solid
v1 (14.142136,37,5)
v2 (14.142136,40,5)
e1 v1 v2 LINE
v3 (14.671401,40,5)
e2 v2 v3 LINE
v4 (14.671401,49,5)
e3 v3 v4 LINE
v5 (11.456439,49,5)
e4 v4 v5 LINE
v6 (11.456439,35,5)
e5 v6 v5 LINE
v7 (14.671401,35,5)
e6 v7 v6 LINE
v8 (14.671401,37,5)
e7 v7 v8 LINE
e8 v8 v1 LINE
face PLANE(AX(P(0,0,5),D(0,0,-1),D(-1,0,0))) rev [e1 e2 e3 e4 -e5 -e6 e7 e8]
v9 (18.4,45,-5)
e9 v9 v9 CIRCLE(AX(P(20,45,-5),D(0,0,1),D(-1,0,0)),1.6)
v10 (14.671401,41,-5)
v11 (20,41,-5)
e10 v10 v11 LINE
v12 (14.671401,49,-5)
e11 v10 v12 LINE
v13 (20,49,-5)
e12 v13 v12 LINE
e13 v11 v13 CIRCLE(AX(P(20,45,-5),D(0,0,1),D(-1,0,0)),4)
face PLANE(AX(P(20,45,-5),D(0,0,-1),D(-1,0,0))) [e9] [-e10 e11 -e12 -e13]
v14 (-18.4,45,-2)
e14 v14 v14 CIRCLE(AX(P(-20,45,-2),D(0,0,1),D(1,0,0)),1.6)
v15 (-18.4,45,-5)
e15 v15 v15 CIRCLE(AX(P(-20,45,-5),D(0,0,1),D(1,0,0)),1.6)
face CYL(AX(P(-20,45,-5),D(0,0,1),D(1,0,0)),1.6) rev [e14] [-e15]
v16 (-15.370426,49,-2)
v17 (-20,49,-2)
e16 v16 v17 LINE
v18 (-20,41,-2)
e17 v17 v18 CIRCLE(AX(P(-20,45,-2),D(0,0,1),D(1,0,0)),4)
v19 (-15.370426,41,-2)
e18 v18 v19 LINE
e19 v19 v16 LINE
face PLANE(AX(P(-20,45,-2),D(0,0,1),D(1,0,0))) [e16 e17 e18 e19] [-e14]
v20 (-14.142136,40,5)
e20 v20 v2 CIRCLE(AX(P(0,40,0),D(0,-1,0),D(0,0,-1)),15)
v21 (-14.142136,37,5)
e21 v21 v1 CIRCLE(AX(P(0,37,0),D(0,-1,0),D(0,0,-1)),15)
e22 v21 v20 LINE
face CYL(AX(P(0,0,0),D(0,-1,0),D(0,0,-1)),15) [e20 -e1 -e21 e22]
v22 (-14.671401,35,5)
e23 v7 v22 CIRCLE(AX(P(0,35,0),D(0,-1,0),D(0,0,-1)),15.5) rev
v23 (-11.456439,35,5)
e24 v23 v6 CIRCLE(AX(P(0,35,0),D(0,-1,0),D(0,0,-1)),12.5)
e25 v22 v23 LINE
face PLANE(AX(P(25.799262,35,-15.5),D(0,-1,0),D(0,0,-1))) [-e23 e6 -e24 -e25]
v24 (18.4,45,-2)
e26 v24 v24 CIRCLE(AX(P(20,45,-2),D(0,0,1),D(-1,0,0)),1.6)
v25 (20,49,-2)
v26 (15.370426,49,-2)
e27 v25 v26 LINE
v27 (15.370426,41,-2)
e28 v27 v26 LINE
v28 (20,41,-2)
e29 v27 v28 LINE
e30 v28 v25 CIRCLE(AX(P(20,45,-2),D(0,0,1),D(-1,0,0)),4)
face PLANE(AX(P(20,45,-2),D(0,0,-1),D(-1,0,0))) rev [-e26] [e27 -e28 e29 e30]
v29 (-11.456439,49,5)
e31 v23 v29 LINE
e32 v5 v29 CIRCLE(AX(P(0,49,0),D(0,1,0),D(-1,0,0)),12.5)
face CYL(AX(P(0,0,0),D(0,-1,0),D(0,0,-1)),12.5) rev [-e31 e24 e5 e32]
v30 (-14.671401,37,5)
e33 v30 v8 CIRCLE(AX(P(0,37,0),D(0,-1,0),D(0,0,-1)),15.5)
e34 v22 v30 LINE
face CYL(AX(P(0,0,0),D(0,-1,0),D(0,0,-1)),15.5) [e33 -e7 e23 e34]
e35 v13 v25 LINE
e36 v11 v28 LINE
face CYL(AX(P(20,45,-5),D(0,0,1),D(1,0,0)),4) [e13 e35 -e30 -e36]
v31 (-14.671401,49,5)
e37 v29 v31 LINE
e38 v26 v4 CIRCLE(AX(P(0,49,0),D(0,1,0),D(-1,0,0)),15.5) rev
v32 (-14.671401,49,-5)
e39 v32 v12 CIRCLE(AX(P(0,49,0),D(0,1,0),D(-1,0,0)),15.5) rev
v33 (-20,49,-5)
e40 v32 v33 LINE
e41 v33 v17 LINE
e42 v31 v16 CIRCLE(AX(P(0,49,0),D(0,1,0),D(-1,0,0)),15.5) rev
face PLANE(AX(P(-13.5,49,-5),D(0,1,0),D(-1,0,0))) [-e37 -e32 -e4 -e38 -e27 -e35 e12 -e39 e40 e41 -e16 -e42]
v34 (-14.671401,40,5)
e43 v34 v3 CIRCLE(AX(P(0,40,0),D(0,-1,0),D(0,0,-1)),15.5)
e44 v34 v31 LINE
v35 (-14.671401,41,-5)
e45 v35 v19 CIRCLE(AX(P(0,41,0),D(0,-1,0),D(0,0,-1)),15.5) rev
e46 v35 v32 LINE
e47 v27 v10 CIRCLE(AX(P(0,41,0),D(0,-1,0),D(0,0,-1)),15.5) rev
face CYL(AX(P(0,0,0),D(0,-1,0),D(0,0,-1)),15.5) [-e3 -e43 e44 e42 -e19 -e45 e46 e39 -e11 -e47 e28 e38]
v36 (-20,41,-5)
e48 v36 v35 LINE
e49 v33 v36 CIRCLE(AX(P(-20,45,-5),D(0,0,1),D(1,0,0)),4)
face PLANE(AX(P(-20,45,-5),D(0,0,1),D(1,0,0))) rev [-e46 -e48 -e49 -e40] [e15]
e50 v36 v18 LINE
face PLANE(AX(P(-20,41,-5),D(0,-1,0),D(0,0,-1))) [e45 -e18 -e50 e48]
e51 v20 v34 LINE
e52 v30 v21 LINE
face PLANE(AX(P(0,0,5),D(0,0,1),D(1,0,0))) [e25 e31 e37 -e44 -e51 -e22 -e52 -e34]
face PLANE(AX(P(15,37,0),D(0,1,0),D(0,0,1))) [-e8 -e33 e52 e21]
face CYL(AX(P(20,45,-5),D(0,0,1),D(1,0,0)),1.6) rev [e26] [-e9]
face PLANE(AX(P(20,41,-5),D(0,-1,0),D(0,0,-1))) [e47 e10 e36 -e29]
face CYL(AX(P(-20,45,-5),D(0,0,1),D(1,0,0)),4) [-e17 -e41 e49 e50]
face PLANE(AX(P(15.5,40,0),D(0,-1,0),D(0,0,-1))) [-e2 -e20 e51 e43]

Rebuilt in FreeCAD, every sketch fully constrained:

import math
import FreeCAD as App
import Part
import Sketcher
from FreeCAD import Vector
Q = App.Units.Quantity

doc = App.newDocument("Part")
body = doc.addObject("PartDesign::Body", "Body")

# Sketch on XY plane
sketch1 = body.newObject("Sketcher::SketchObject", "Sketch")
sketch1.AttachmentSupport = (doc.getObject("XY_Plane"), [""])
sketch1.MapMode = "FlatFace"
sketch1.addGeometry(Part.LineSegment(Vector(15.5, 37, 0), Vector(15, 37, 0)), False)
sketch1.addGeometry(Part.LineSegment(Vector(15, 37, 0), Vector(15, 40, 0)), False)
sketch1.addGeometry(Part.LineSegment(Vector(15, 40, 0), Vector(15.5, 40, 0)), False)
sketch1.addGeometry(Part.LineSegment(Vector(15.5, 40, 0), Vector(15.5, 50, 0)), False)
sketch1.addGeometry(Part.LineSegment(Vector(15.5, 50, 0), Vector(12.5, 50, 0)), False)
sketch1.addGeometry(Part.LineSegment(Vector(12.5, 50, 0), Vector(12.5, 0, 0)), False)
sketch1.addGeometry(Part.LineSegment(Vector(12.5, 0, 0), Vector(15.5, 0, 0)), False)
sketch1.addGeometry(Part.LineSegment(Vector(15.5, 0, 0), Vector(15.5, 10, 0)), False)
sketch1.addGeometry(Part.LineSegment(Vector(15.5, 10, 0), Vector(15, 10, 0)), False)
sketch1.addGeometry(Part.LineSegment(Vector(15, 10, 0), Vector(15, 13, 0)), False)
sketch1.addGeometry(Part.LineSegment(Vector(15, 13, 0), Vector(15.5, 13, 0)), False)
sketch1.addGeometry(Part.LineSegment(Vector(15.5, 13, 0), Vector(15.5, 37, 0)), False)
sketch1.addConstraint(Sketcher.Constraint("Coincident", 0, 2, 1, 1))
sketch1.addConstraint(Sketcher.Constraint("Coincident", 1, 2, 2, 1))
sketch1.addConstraint(Sketcher.Constraint("Coincident", 2, 2, 3, 1))
sketch1.addConstraint(Sketcher.Constraint("Coincident", 3, 2, 4, 1))
sketch1.addConstraint(Sketcher.Constraint("Coincident", 4, 2, 5, 1))
sketch1.addConstraint(Sketcher.Constraint("Coincident", 5, 2, 6, 1))
sketch1.addConstraint(Sketcher.Constraint("Coincident", 6, 2, 7, 1))
sketch1.addConstraint(Sketcher.Constraint("Coincident", 7, 2, 8, 1))
sketch1.addConstraint(Sketcher.Constraint("Coincident", 8, 2, 9, 1))
sketch1.addConstraint(Sketcher.Constraint("Coincident", 9, 2, 10, 1))
sketch1.addConstraint(Sketcher.Constraint("Coincident", 10, 2, 11, 1))
sketch1.addConstraint(Sketcher.Constraint("Coincident", 11, 2, 0, 1))
sketch1.addConstraint(Sketcher.Constraint("Horizontal", 0))
sketch1.addConstraint(Sketcher.Constraint("Vertical", 1))
sketch1.addConstraint(Sketcher.Constraint("Horizontal", 2))
sketch1.addConstraint(Sketcher.Constraint("Vertical", 3))
sketch1.addConstraint(Sketcher.Constraint("Horizontal", 4))
sketch1.addConstraint(Sketcher.Constraint("Vertical", 5))
sketch1.addConstraint(Sketcher.Constraint("Horizontal", 6))
sketch1.addConstraint(Sketcher.Constraint("Vertical", 7))
sketch1.addConstraint(Sketcher.Constraint("Horizontal", 8))
sketch1.addConstraint(Sketcher.Constraint("Vertical", 9))
sketch1.addConstraint(Sketcher.Constraint("Horizontal", 10))
sketch1.addConstraint(Sketcher.Constraint("Vertical", 11))
sketch1.addConstraint(Sketcher.Constraint("PointOnObject", 5, 2, -1))
sketch1.addConstraint(Sketcher.Constraint("Vertical", 3, 2, 6, 2))
sketch1.addConstraint(Sketcher.Constraint("Vertical", 1, 2, 8, 2))
sketch1.addConstraint(Sketcher.Constraint("Vertical", 7, 2, 10, 2))
sketch1.addConstraint(Sketcher.Constraint("Equal", 6, 1))
sketch1.addConstraint(Sketcher.Constraint("Equal", 3, 7))
sketch1.addConstraint(Sketcher.Constraint("Equal", 1, 9))
sketch1.addConstraint(Sketcher.Constraint("DistanceX", 4, 2, 4, 1, Q("3 mm")))
sketch1.addConstraint(Sketcher.Constraint("DistanceY", 3, 1, 3, 2, Q("10 mm")))
sketch1.addConstraint(Sketcher.Constraint("DistanceY", 5, 2, 5, 1, Q("50 mm")))
sketch1.addConstraint(Sketcher.Constraint("DistanceX", 0, 2, 0, 1, Q("0.5 mm")))
sketch1.addConstraint(Sketcher.Constraint("DistanceX", -1, 1, 0, 2, Q("15 mm")))
revolution = body.newObject("PartDesign::Revolution", "Revolution")
revolution.Profile = sketch1
revolution.ReferenceAxis = (sketch1, ["V_Axis"])
revolution.Angle = 360

# Sketch on XZ plane
sketch2 = body.newObject("Sketcher::SketchObject", "Sketch001")
sketch2.AttachmentSupport = (doc.getObject("XZ_Plane"), [""])
sketch2.MapMode = "FlatFace"
sketch2.AttachmentOffset = App.Placement(Vector(0, 0, -50), App.Rotation())
sketch2.addGeometry(Part.LineSegment(Vector(-11.5, 5, 0), Vector(-14.7, 5, 0)), False)
sketch2.addGeometry(Part.ArcOfCircle(Part.Circle(Vector(0, 0, 0), Vector(0, 0, 1), 15.5), math.radians(19), math.radians(161)), False)
sketch2.addGeometry(Part.LineSegment(Vector(14.7, 5, 0), Vector(11.5, 5, 0)), False)
sketch2.addGeometry(Part.ArcOfCircle(Part.Circle(Vector(0, 0, 0), Vector(0, 0, 1), 12.5), math.radians(24), math.radians(156)), False)
sketch2.addConstraint(Sketcher.Constraint("Coincident", 0, 2, 1, 2))
sketch2.addConstraint(Sketcher.Constraint("Coincident", 1, 1, 2, 1))
sketch2.addConstraint(Sketcher.Constraint("Coincident", 2, 2, 3, 1))
sketch2.addConstraint(Sketcher.Constraint("Coincident", 3, 2, 0, 1))
sketch2.addConstraint(Sketcher.Constraint("Horizontal", 0))
sketch2.addConstraint(Sketcher.Constraint("Horizontal", 2))
sketch2.addConstraint(Sketcher.Constraint("Coincident", 1, 3, -1, 1))
sketch2.addConstraint(Sketcher.Constraint("Coincident", 3, 3, -1, 1))
sketch2.addConstraint(Sketcher.Constraint("Horizontal", 0, 2, 1, 1))
sketch2.addConstraint(Sketcher.Constraint("Radius", 1, Q("15.5 mm")))
sketch2.addConstraint(Sketcher.Constraint("Radius", 3, Q("12.5 mm")))
sketch2.addConstraint(Sketcher.Constraint("DistanceY", -1, 1, 0, 2, Q("5 mm")))
pocket1 = body.newObject("PartDesign::Pocket", "Pocket")
pocket1.Profile = sketch2
pocket1.Type = "ThroughAll"
pocket1.Midplane = True

# Sketch on XY plane
sketch3 = body.newObject("Sketcher::SketchObject", "Sketch002")
sketch3.AttachmentSupport = (doc.getObject("XY_Plane"), [""])
sketch3.MapMode = "FlatFace"
sketch3.AttachmentOffset = App.Placement(Vector(0, 0, -2), App.Rotation())
sketch3.addGeometry(Part.LineSegment(Vector(-13.5, 49, 0), Vector(-20, 49, 0)), False)
sketch3.addGeometry(Part.ArcOfCircle(Part.Circle(Vector(-20, 45, 0), Vector(0, 0, 1), 4), math.radians(90), math.radians(270)), False)
sketch3.addGeometry(Part.LineSegment(Vector(-20, 41, 0), Vector(-13.5, 41, 0)), False)
sketch3.addGeometry(Part.LineSegment(Vector(-13.5, 41, 0), Vector(-13.5, 49, 0)), False)
sketch3.addGeometry(Part.Circle(Vector(-20, 45, 0), Vector(0, 0, 1), 1.6), False)
sketch3.addGeometry(Part.LineSegment(Vector(13.5, 49, 0), Vector(13.5, 41, 0)), False)
sketch3.addGeometry(Part.LineSegment(Vector(13.5, 41, 0), Vector(20, 41, 0)), False)
sketch3.addGeometry(Part.ArcOfCircle(Part.Circle(Vector(20, 45, 0), Vector(0, 0, 1), 4), math.radians(-90), math.radians(90)), False)
sketch3.addGeometry(Part.LineSegment(Vector(20, 49, 0), Vector(13.5, 49, 0)), False)
sketch3.addGeometry(Part.Circle(Vector(20, 45, 0), Vector(0, 0, 1), 1.6), False)
sketch3.addGeometry(Part.LineSegment(Vector(13.5, 1, 0), Vector(20, 1, 0)), False)
sketch3.addGeometry(Part.ArcOfCircle(Part.Circle(Vector(20, 5, 0), Vector(0, 0, 1), 4), math.radians(-90), math.radians(90)), False)
sketch3.addGeometry(Part.LineSegment(Vector(20, 9, 0), Vector(13.5, 9, 0)), False)
sketch3.addGeometry(Part.LineSegment(Vector(13.5, 9, 0), Vector(13.5, 1, 0)), False)
sketch3.addGeometry(Part.Circle(Vector(20, 5, 0), Vector(0, 0, 1), 1.6), False)
sketch3.addGeometry(Part.LineSegment(Vector(-13.5, 1, 0), Vector(-13.5, 9, 0)), False)
sketch3.addGeometry(Part.LineSegment(Vector(-13.5, 9, 0), Vector(-20, 9, 0)), False)
sketch3.addGeometry(Part.ArcOfCircle(Part.Circle(Vector(-20, 5, 0), Vector(0, 0, 1), 4), math.radians(90), math.radians(270)), False)
sketch3.addGeometry(Part.LineSegment(Vector(-20, 1, 0), Vector(-13.5, 1, 0)), False)
sketch3.addGeometry(Part.Circle(Vector(-20, 5, 0), Vector(0, 0, 1), 1.6), False)
sketch3.addConstraint(Sketcher.Constraint("Tangent", 0, 2, 1, 1))
sketch3.addConstraint(Sketcher.Constraint("Tangent", 1, 2, 2, 1))
sketch3.addConstraint(Sketcher.Constraint("Coincident", 2, 2, 3, 1))
sketch3.addConstraint(Sketcher.Constraint("Coincident", 3, 2, 0, 1))
sketch3.addConstraint(Sketcher.Constraint("Coincident", 5, 2, 6, 1))
sketch3.addConstraint(Sketcher.Constraint("Tangent", 6, 2, 7, 1))
sketch3.addConstraint(Sketcher.Constraint("Tangent", 7, 2, 8, 1))
sketch3.addConstraint(Sketcher.Constraint("Coincident", 8, 2, 5, 1))
sketch3.addConstraint(Sketcher.Constraint("Tangent", 10, 2, 11, 1))
sketch3.addConstraint(Sketcher.Constraint("Tangent", 11, 2, 12, 1))
sketch3.addConstraint(Sketcher.Constraint("Coincident", 12, 2, 13, 1))
sketch3.addConstraint(Sketcher.Constraint("Coincident", 13, 2, 10, 1))
sketch3.addConstraint(Sketcher.Constraint("Coincident", 15, 2, 16, 1))
sketch3.addConstraint(Sketcher.Constraint("Tangent", 16, 2, 17, 1))
sketch3.addConstraint(Sketcher.Constraint("Tangent", 17, 2, 18, 1))
sketch3.addConstraint(Sketcher.Constraint("Coincident", 18, 2, 15, 1))
sketch3.addConstraint(Sketcher.Constraint("Horizontal", 0))
sketch3.addConstraint(Sketcher.Constraint("Horizontal", 2))
sketch3.addConstraint(Sketcher.Constraint("Vertical", 3))
sketch3.addConstraint(Sketcher.Constraint("Vertical", 5))
sketch3.addConstraint(Sketcher.Constraint("Horizontal", 6))
sketch3.addConstraint(Sketcher.Constraint("Horizontal", 8))
sketch3.addConstraint(Sketcher.Constraint("Horizontal", 10))
sketch3.addConstraint(Sketcher.Constraint("Horizontal", 12))
sketch3.addConstraint(Sketcher.Constraint("Vertical", 13))
sketch3.addConstraint(Sketcher.Constraint("Vertical", 15))
sketch3.addConstraint(Sketcher.Constraint("Horizontal", 16))
sketch3.addConstraint(Sketcher.Constraint("Horizontal", 18))
sketch3.addConstraint(Sketcher.Constraint("Coincident", 4, 3, 1, 3))
sketch3.addConstraint(Sketcher.Constraint("Coincident", 9, 3, 7, 3))
sketch3.addConstraint(Sketcher.Constraint("Coincident", 14, 3, 11, 3))
sketch3.addConstraint(Sketcher.Constraint("Coincident", 19, 3, 17, 3))
sketch3.addConstraint(Sketcher.Constraint("Equal", 1, 7))
sketch3.addConstraint(Sketcher.Constraint("Equal", 4, 9))
sketch3.addConstraint(Sketcher.Constraint("Equal", 7, 11))
sketch3.addConstraint(Sketcher.Constraint("Equal", 9, 14))
sketch3.addConstraint(Sketcher.Constraint("Equal", 11, 17))
sketch3.addConstraint(Sketcher.Constraint("Equal", 14, 19))
sketch3.addConstraint(Sketcher.Constraint("Symmetric", 1, 3, 7, 3, -2))
sketch3.addConstraint(Sketcher.Constraint("Symmetric", 11, 3, 17, 3, -2))
sketch3.addConstraint(Sketcher.Constraint("Vertical", 9, 3, 11, 3))
sketch3.addConstraint(Sketcher.Constraint("Vertical", 8, 2, 12, 2))
sketch3.addConstraint(Sketcher.Constraint("Vertical", 3, 2, 15, 2))
sketch3.addConstraint(Sketcher.Constraint("Equal", 2, 6))
sketch3.addConstraint(Sketcher.Constraint("Radius", 1, Q("4 mm")))
sketch3.addConstraint(Sketcher.Constraint("Diameter", 4, Q("3.2 mm")))
sketch3.addConstraint(Sketcher.Constraint("DistanceX", 0, 2, 0, 1, Q("6.5 mm")))
sketch3.addConstraint(Sketcher.Constraint("DistanceX", 1, 3, -1, 1, Q("20 mm")))
sketch3.addConstraint(Sketcher.Constraint("DistanceY", -1, 1, 1, 3, Q("45 mm")))
sketch3.addConstraint(Sketcher.Constraint("DistanceY", -1, 1, 11, 3, Q("5 mm")))
pad1 = body.newObject("PartDesign::Pad", "Pad")
pad1.Profile = sketch3
pad1.Length = 3
pad1.Reversed = True

# Sketch on XY plane
sketch4 = body.newObject("Sketcher::SketchObject", "Sketch003")
sketch4.AttachmentSupport = (doc.getObject("XY_Plane"), [""])
sketch4.MapMode = "FlatFace"
sketch4.addGeometry(Part.LineSegment(Vector(-34, 52, 0), Vector(-34, -3, 0)), False)
sketch4.addGeometry(Part.LineSegment(Vector(-34, -3, 0), Vector(34, -3, 0)), False)
sketch4.addGeometry(Part.LineSegment(Vector(34, -3, 0), Vector(34, 52, 0)), False)
sketch4.addGeometry(Part.LineSegment(Vector(34, 52, 0), Vector(-34, 52, 0)), False)
sketch4.addGeometry(Part.LineSegment(Vector(26, 35, 0), Vector(-26, 35, 0)), False)
sketch4.addGeometry(Part.LineSegment(Vector(-26, 35, 0), Vector(-26, 49, 0)), False)
sketch4.addGeometry(Part.LineSegment(Vector(-26, 49, 0), Vector(26, 49, 0)), False)
sketch4.addGeometry(Part.LineSegment(Vector(26, 49, 0), Vector(26, 35, 0)), False)
sketch4.addConstraint(Sketcher.Constraint("Coincident", 0, 2, 1, 1))
sketch4.addConstraint(Sketcher.Constraint("Coincident", 1, 2, 2, 1))
sketch4.addConstraint(Sketcher.Constraint("Coincident", 2, 2, 3, 1))
sketch4.addConstraint(Sketcher.Constraint("Coincident", 3, 2, 0, 1))
sketch4.addConstraint(Sketcher.Constraint("Coincident", 4, 2, 5, 1))
sketch4.addConstraint(Sketcher.Constraint("Coincident", 5, 2, 6, 1))
sketch4.addConstraint(Sketcher.Constraint("Coincident", 6, 2, 7, 1))
sketch4.addConstraint(Sketcher.Constraint("Coincident", 7, 2, 4, 1))
sketch4.addConstraint(Sketcher.Constraint("Vertical", 0))
sketch4.addConstraint(Sketcher.Constraint("Horizontal", 1))
sketch4.addConstraint(Sketcher.Constraint("Vertical", 2))
sketch4.addConstraint(Sketcher.Constraint("Horizontal", 3))
sketch4.addConstraint(Sketcher.Constraint("Horizontal", 4))
sketch4.addConstraint(Sketcher.Constraint("Vertical", 5))
sketch4.addConstraint(Sketcher.Constraint("Horizontal", 6))
sketch4.addConstraint(Sketcher.Constraint("Vertical", 7))
sketch4.addConstraint(Sketcher.Constraint("DistanceY", 5, 1, 5, 2, Q("14 mm")))
sketch4.addConstraint(Sketcher.Constraint("DistanceY", -1, 1, 4, 2, Q("35 mm")))
sketch4.addConstraint(Sketcher.Constraint("DistanceX", 1, 1, 1, 2, Q("67.372166 mm")))
sketch4.addConstraint(Sketcher.Constraint("DistanceX", 4, 2, 4, 1, Q("51.598524 mm")))
sketch4.addConstraint(Sketcher.Constraint("DistanceY", 0, 2, 0, 1, Q("55.074072 mm")))
sketch4.addConstraint(Sketcher.Constraint("DistanceY", 0, 2, -1, 1, Q("2.737549 mm")))
sketch4.addConstraint(Sketcher.Constraint("DistanceX", -1, 1, 1, 2, Q("33.752921 mm")))
sketch4.addConstraint(Sketcher.Constraint("DistanceX", 6, 2, 2, 2, Q("7.953659 mm")))
pocket2 = body.newObject("PartDesign::Pocket", "Pocket001")
pocket2.Profile = sketch4
pocket2.Type = "ThroughAll"
pocket2.Midplane = True

doc.recompute()
